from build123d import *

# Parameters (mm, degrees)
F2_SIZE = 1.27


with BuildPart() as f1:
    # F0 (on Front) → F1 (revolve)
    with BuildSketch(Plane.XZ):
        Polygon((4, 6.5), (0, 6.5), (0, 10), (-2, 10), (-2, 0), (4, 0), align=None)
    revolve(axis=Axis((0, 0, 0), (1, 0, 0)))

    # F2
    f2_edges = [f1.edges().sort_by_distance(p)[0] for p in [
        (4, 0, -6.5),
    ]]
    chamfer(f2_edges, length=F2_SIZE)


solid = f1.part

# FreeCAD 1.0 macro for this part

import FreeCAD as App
import Part
import Sketcher

V = App.Vector


def edges_at(feature, points):
    """Names of the edges that pass closest to the given points."""
    edges = feature.Shape.Edges
    near = lambda p: min(range(len(edges)), key=lambda i: edges[i].distToShape(Part.Vertex(*p))[0])
    return sorted({f"Edge{near(p) + 1}" for p in points})

doc = App.newDocument("Part")
params = doc.addObject("Spreadsheet::Sheet", "Params")
for row, (alias, value) in enumerate([
    ("sketch1_width", "4 mm"),
    ("sketch1_width2", "2 mm"),
    ("sketch1_height", "10 mm"),
    ("sketch1_height2", "3.5 mm"),
    ("revolution_angle", "360 deg"),
    ("chamfer_size", "1.27 mm"),
], start=1):
    params.set(f"A{row}", alias)
    params.set(f"B{row}", "=" + value)
    params.setAlias(f"B{row}", alias)

body = doc.addObject("PartDesign::Body", "Body")

sketch1 = body.newObject("Sketcher::SketchObject", "Sketch")
sketch1.AttachmentSupport = (doc.getObject("XZ_Plane"), [""])
sketch1.MapMode = "FlatFace"
sketch1.addGeometry([
    Part.LineSegment(V(4, 6.5, 0), V(0, 6.5, 0)),
    Part.LineSegment(V(0, 6.5, 0), V(0, 10, 0)),
    Part.LineSegment(V(0, 10, 0), V(-2, 10, 0)),
    Part.LineSegment(V(-2, 10, 0), V(-2, 0, 0)),
    Part.LineSegment(V(-2, 0, 0), V(4, 0, 0)),
    Part.LineSegment(V(4, 0, 0), V(4, 6.5, 0)),
], False)
sketch1.addConstraint([
    Sketcher.Constraint("Coincident", 0, 2, 1, 1),
    Sketcher.Constraint("Coincident", 1, 2, 2, 1),
    Sketcher.Constraint("Coincident", 2, 2, 3, 1),
    Sketcher.Constraint("Coincident", 3, 2, 4, 1),
    Sketcher.Constraint("Coincident", 4, 2, 5, 1),
    Sketcher.Constraint("Coincident", 5, 2, 0, 1),
    Sketcher.Constraint("Horizontal", 0),
    Sketcher.Constraint("Vertical", 1),
    Sketcher.Constraint("Horizontal", 2),
    Sketcher.Constraint("Vertical", 3),
    Sketcher.Constraint("Horizontal", 4),
    Sketcher.Constraint("Vertical", 5),
    Sketcher.Constraint("PointOnObject", 0, 2, -2),
    Sketcher.Constraint("PointOnObject", 3, 2, -1),
    Sketcher.Constraint("DistanceX", 0, 2, 0, 1, 4.0),
    Sketcher.Constraint("DistanceX", 2, 2, 2, 1, 2.0),
    Sketcher.Constraint("DistanceY", 3, 2, 3, 1, 10.0),
    Sketcher.Constraint("DistanceY", 1, 1, 1, 2, 3.5),
])
sketch1.setExpression("Constraints[14]", "Params.sketch1_width")
sketch1.setExpression("Constraints[15]", "Params.sketch1_width2")
sketch1.setExpression("Constraints[16]", "Params.sketch1_height")
sketch1.setExpression("Constraints[17]", "Params.sketch1_height2")
revolution = body.newObject("PartDesign::Revolution", "Revolution")
revolution.Profile = sketch1
revolution.ReferenceAxis = (sketch1, ["H_Axis"])
revolution.setExpression("Angle", "Params.revolution_angle")
doc.recompute()

chamfer = body.newObject("PartDesign::Chamfer", "Chamfer")
chamfer.Base = (revolution, edges_at(revolution, [(4, 0, -6.5)]))
chamfer.setExpression("Size", "Params.chamfer_size")

doc.recompute()
